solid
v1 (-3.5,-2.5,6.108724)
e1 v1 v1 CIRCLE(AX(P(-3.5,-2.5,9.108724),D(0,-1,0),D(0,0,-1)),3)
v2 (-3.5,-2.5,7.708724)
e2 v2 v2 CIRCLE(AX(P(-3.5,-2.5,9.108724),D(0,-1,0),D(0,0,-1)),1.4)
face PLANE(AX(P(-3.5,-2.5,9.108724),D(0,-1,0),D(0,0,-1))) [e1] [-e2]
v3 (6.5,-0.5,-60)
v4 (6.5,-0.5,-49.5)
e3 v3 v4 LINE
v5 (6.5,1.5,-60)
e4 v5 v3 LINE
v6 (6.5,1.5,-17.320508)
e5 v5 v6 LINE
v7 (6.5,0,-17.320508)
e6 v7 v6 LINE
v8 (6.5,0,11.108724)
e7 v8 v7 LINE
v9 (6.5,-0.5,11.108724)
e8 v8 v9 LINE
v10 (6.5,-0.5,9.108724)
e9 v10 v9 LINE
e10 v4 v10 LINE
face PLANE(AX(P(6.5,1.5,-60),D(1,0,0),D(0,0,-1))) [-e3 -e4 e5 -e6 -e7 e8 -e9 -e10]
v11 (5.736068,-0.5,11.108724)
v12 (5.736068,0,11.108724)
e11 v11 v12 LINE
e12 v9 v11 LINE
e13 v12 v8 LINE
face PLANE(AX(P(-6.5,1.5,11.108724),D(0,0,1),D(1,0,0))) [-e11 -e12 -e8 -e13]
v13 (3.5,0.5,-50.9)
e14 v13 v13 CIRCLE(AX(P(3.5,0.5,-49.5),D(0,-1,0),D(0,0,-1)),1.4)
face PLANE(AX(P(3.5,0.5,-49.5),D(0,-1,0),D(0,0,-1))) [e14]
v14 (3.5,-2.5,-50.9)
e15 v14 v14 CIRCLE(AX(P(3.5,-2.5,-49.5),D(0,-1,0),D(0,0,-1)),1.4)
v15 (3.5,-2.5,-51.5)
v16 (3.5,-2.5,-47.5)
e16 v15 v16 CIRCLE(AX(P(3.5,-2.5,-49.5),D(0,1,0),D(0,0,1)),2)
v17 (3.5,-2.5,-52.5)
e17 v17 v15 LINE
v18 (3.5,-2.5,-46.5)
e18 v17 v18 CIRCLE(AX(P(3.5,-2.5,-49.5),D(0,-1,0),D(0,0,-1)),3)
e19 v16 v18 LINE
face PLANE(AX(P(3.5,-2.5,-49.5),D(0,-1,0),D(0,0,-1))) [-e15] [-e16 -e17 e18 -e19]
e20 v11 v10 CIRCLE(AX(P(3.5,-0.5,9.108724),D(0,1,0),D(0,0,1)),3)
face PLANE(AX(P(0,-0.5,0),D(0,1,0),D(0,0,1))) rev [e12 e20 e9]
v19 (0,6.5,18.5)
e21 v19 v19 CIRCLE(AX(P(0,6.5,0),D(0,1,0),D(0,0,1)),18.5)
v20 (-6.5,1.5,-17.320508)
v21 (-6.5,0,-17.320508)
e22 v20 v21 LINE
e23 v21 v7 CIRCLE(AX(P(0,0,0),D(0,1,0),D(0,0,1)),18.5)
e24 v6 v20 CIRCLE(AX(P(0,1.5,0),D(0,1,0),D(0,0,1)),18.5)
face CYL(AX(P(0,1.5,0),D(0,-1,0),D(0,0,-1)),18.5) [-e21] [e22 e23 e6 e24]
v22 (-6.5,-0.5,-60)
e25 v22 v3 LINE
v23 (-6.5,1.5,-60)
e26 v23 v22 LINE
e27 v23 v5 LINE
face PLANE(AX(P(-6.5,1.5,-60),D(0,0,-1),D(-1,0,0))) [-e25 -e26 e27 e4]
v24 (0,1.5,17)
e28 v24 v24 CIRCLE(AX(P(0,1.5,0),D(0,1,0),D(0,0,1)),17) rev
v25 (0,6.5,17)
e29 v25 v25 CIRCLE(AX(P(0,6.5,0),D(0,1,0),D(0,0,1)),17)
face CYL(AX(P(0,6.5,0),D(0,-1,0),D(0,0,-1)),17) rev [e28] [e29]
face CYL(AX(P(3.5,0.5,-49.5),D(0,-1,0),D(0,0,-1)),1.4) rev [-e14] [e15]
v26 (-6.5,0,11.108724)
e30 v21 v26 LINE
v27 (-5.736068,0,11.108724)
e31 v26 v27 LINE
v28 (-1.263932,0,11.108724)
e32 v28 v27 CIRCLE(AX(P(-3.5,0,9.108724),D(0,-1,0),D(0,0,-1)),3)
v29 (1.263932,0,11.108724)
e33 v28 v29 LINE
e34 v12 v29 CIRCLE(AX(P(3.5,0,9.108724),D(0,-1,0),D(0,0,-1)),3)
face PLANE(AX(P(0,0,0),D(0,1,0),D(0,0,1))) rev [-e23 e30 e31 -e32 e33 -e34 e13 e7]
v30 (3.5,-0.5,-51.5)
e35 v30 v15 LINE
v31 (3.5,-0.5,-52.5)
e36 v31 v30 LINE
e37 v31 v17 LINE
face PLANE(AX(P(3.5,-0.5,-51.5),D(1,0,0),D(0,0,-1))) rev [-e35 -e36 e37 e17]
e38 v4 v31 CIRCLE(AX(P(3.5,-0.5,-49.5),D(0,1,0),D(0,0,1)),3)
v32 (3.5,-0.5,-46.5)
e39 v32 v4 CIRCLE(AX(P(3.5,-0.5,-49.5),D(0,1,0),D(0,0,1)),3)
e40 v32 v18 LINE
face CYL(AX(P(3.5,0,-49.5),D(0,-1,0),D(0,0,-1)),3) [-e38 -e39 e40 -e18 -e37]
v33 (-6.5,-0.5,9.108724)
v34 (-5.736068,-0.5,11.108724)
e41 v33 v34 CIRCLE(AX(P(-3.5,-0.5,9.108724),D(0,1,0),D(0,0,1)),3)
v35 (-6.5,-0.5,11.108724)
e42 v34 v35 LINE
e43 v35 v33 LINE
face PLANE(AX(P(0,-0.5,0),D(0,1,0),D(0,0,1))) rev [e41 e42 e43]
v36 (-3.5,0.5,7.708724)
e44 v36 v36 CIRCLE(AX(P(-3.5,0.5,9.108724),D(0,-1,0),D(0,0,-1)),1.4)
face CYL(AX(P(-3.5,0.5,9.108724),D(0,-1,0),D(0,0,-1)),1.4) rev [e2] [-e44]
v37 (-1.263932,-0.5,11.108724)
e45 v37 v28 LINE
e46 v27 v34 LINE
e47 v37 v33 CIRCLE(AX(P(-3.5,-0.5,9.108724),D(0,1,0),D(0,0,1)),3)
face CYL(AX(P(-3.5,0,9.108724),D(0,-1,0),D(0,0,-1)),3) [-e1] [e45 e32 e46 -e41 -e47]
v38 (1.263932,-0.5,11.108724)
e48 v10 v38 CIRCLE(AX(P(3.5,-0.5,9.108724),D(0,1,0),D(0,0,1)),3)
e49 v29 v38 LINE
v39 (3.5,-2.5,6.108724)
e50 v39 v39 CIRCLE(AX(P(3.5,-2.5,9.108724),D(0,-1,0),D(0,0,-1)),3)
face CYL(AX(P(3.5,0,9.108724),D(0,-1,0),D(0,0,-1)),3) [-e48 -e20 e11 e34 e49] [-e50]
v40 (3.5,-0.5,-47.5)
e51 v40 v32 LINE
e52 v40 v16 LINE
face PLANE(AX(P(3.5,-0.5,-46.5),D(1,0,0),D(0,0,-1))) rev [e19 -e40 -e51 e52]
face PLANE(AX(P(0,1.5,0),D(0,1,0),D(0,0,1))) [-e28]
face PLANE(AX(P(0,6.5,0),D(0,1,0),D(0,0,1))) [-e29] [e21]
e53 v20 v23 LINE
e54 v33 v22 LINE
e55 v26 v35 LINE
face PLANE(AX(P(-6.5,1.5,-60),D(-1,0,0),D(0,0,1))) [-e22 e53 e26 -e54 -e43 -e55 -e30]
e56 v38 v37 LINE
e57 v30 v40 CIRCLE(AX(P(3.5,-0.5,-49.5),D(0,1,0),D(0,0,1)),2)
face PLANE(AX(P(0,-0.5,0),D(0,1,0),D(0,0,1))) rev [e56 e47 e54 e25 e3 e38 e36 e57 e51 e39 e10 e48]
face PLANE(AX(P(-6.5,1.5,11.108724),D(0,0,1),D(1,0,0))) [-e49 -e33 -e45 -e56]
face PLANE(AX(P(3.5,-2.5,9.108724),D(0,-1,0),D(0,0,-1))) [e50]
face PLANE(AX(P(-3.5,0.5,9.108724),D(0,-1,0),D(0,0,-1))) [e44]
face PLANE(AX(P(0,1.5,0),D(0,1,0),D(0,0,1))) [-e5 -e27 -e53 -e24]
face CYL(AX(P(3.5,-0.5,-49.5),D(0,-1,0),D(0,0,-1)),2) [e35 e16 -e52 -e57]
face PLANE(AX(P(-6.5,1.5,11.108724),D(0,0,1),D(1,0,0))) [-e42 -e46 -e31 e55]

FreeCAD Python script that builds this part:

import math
import FreeCAD as App
import Part
import Sketcher


def add_polygon(sketch, points):
    """Adds a closed chain of lines whose ends are joined by coincident constraints."""
    first, n = sketch.GeometryCount, len(points)
    for a, b in zip(points, points[1:] + points[:1]):
        sketch.addGeometry(Part.LineSegment(App.Vector(*a, 0), App.Vector(*b, 0)), False)
    for i in range(n):
        sketch.addConstraint(Sketcher.Constraint("Coincident", first + i, 2, first + (i + 1) % n, 1))

doc = App.newDocument("Part")
params = doc.addObject("Spreadsheet::Sheet", "Params")
for row, (alias, value) in enumerate([
    ("sketch1_diameter", "37 mm"),
    ("pad1_length", "1.5 mm"),
    ("sketch2_diameter", "37 mm"),
    ("sketch2_diameter2", "34 mm"),
    ("pad2_length", "5 mm"),
    ("sketch3_width", "13 mm"),
    ("pad3_length", "0.5 mm"),
    ("pad3_length2", "1.5 mm"),
    ("sketch4_diameter", "6 mm"),
    ("pad4_length", "2 mm"),
    ("pad4_length2", "0.5 mm"),
    ("sketch5_radius", "2 mm"),
    ("sketch5_radius2", "3 mm"),
    ("pocket1_length", "2 mm"),
    ("sketch6_diameter", "2.8 mm"),
    ("pocket2_length", "3 mm"),
], start=1):
    params.set(f"A{row}", alias)
    params.set(f"B{row}", "=" + value)
    params.setAlias(f"B{row}", alias)

body = doc.addObject("PartDesign::Body", "Body")

# Sketch on XZ plane
sketch1 = doc.addObject("Sketcher::SketchObject", "Sketch")
body.addObject(sketch1)
sketch1.AttachmentSupport = (doc.XZ_Plane, [""])
sketch1.MapMode = "FlatFace"
sketch1.addGeometry(Part.Circle(App.Vector(0, 0, 0), App.Vector(0, 0, 1), 18.5), False)
sketch1.addConstraint([
    Sketcher.Constraint("Coincident", 0, 3, -1, 1),
    Sketcher.Constraint("Diameter", 0, 37.0),
])
sketch1.setExpression("Constraints[1]", "Params.sketch1_diameter")
pad1 = doc.addObject("PartDesign::Pad", "Pad")
body.addObject(pad1)
pad1.Profile = sketch1
pad1.setExpression("Length", "Params.pad1_length")
pad1.Reversed = True

# Sketch on XZ plane
sketch2 = doc.addObject("Sketcher::SketchObject", "Sketch001")
body.addObject(sketch2)
sketch2.AttachmentSupport = (doc.XZ_Plane, [""])
sketch2.MapMode = "FlatFace"
sketch2.AttachmentOffset = App.Placement(App.Vector(0, 0, -1.5), App.Rotation())
sketch2.addGeometry([
    Part.Circle(App.Vector(0, 0, 0), App.Vector(0, 0, 1), 18.5),
    Part.Circle(App.Vector(0, 0, 0), App.Vector(0, 0, 1), 17),
], False)
sketch2.addConstraint([
    Sketcher.Constraint("Coincident", 0, 3, -1, 1),
    Sketcher.Constraint("Coincident", 1, 3, -1, 1),
    Sketcher.Constraint("Diameter", 0, 37.0),
    Sketcher.Constraint("Diameter", 1, 34.0),
])
sketch2.setExpression("Constraints[2]", "Params.sketch2_diameter")
sketch2.setExpression("Constraints[3]", "Params.sketch2_diameter2")
pad2 = doc.addObject("PartDesign::Pad", "Pad001")
body.addObject(pad2)
pad2.Profile = sketch2
pad2.setExpression("Length", "Params.pad2_length")
pad2.Reversed = True

# Sketch on XZ plane
sketch3 = doc.addObject("Sketcher::SketchObject", "Sketch002")
body.addObject(sketch3)
sketch3.AttachmentSupport = (doc.XZ_Plane, [""])
sketch3.MapMode = "FlatFace"
add_polygon(sketch3, [(6.5, -60), (6.5, 11.108724), (-6.5, 11.108724), (-6.5, -60)])  # lines 0-3
sketch3.addConstraint([
    Sketcher.Constraint("Vertical", 0),
    Sketcher.Constraint("Horizontal", 1),
    Sketcher.Constraint("Vertical", 2),
    Sketcher.Constraint("Horizontal", 3),
    Sketcher.Constraint("DistanceX", 1, 2, 1, 1, 13.0),
    Sketcher.Constraint("DistanceY", 2, 2, -1, 1, 60.0),
    Sketcher.Constraint("DistanceX", -1, 1, 0, 2, 6.5),
    Sketcher.Constraint("DistanceY", 0, 1, 0, 2, 71.108724),
])
sketch3.setExpression("Constraints[8]", "Params.sketch3_width")
pad3 = doc.addObject("PartDesign::Pad", "Pad002")
body.addObject(pad3)
pad3.Profile = sketch3
pad3.Type = "TwoLengths"
pad3.setExpression("Length", "Params.pad3_length")
pad3.setExpression("Length2", "Params.pad3_length2")

# Sketch on XZ plane
sketch4 = doc.addObject("Sketcher::SketchObject", "Sketch003")
body.addObject(sketch4)
sketch4.AttachmentSupport = (doc.XZ_Plane, [""])
sketch4.MapMode = "FlatFace"
sketch4.AttachmentOffset = App.Placement(App.Vector(0, 0, 0.5), App.Rotation())
sketch4.addGeometry([
    Part.Circle(App.Vector(-3.5, 9.108724, 0), App.Vector(0, 0, 1), 3),
    Part.Circle(App.Vector(3.5, -49.5, 0), App.Vector(0, 0, 1), 3),
    Part.Circle(App.Vector(3.5, 9.108724, 0), App.Vector(0, 0, 1), 3),
], False)
sketch4.addConstraint([
    Sketcher.Constraint("Equal", 0, 1),
    Sketcher.Constraint("Equal", 1, 2),
    Sketcher.Constraint("Symmetric", 0, 3, 2, 3, -2),
    Sketcher.Constraint("Vertical", 1, 3, 2, 3),
    Sketcher.Constraint("Diameter", 0, 6.0),
    Sketcher.Constraint("DistanceX", 0, 3, 1, 3, 7.0),
    Sketcher.Constraint("DistanceY", 1, 3, -1, 1, 49.5),
    Sketcher.Constraint("DistanceY", -1, 1, 0, 3, 9.108724),
])
sketch4.setExpression("Constraints[4]", "Params.sketch4_diameter")
pad4 = doc.addObject("PartDesign::Pad", "Pad003")
body.addObject(pad4)
pad4.Profile = sketch4
pad4.Type = "TwoLengths"
pad4.setExpression("Length", "Params.pad4_length")
pad4.setExpression("Length2", "Params.pad4_length2")

# Sketch on XZ plane
sketch5 = doc.addObject("Sketcher::SketchObject", "Sketch004")
body.addObject(sketch5)
sketch5.AttachmentSupport = (doc.XZ_Plane, [""])
sketch5.MapMode = "FlatFace"
sketch5.AttachmentOffset = App.Placement(App.Vector(0, 0, 2.5), App.Rotation())
sketch5.addGeometry([
    Part.LineSegment(App.Vector(3.5, -52.5, 0), App.Vector(3.5, -51.5, 0)),
    Part.ArcOfCircle(Part.Circle(App.Vector(3.5, -49.5, 0), App.Vector(0, 0, 1), 2), math.radians(90), math.radians(270)),
    Part.LineSegment(App.Vector(3.5, -47.5, 0), App.Vector(3.5, -46.5, 0)),
    Part.ArcOfCircle(Part.Circle(App.Vector(3.5, -49.5, 0), App.Vector(0, 0, 1), 3), math.radians(90), math.radians(270)),
], False)
sketch5.addConstraint([
    Sketcher.Constraint("Coincident", 0, 2, 1, 2),
    Sketcher.Constraint("Coincident", 1, 1, 2, 1),
    Sketcher.Constraint("Coincident", 2, 2, 3, 1),
    Sketcher.Constraint("Coincident", 3, 2, 0, 1),
    Sketcher.Constraint("Vertical", 0),
    Sketcher.Constraint("Vertical", 2),
    Sketcher.Constraint("Coincident", 3, 3, 1, 3),
    Sketcher.Constraint("Vertical", 3, 3, 0, 2),
    Sketcher.Constraint("Vertical", 0, 2, 1, 1),
    Sketcher.Constraint("Radius", 1, 2.0),
    Sketcher.Constraint("Radius", 3, 3.0),
    Sketcher.Constraint("DistanceX", -1, 1, 1, 3, 3.5),
    Sketcher.Constraint("DistanceY", 1, 3, -1, 1, 49.5),
])
sketch5.setExpression("Constraints[9]", "Params.sketch5_radius")
sketch5.setExpression("Constraints[10]", "Params.sketch5_radius2")
pocket1 = doc.addObject("PartDesign::Pocket", "Pocket")
body.addObject(pocket1)
pocket1.Profile = sketch5
pocket1.setExpression("Length", "Params.pocket1_length")

# Sketch on XZ plane
sketch6 = doc.addObject("Sketcher::SketchObject", "Sketch005")
body.addObject(sketch6)
sketch6.AttachmentSupport = (doc.XZ_Plane, [""])
sketch6.MapMode = "FlatFace"
sketch6.AttachmentOffset = App.Placement(App.Vector(0, 0, 2.5), App.Rotation())
sketch6.addGeometry([
    Part.Circle(App.Vector(3.5, -49.5, 0), App.Vector(0, 0, 1), 1.4),
    Part.Circle(App.Vector(-3.5, 9.108724, 0), App.Vector(0, 0, 1), 1.4),
], False)
sketch6.addConstraint([
    Sketcher.Constraint("Equal", 0, 1),
    Sketcher.Constraint("Diameter", 0, 2.8),
    Sketcher.Constraint("DistanceX", 1, 3, 0, 3, 7.0),
    Sketcher.Constraint("DistanceX", -1, 1, 0, 3, 3.5),
    Sketcher.Constraint("DistanceY", 0, 3, -1, 1, 49.5),
    Sketcher.Constraint("DistanceY", -1, 1, 1, 3, 9.108724),
])
sketch6.setExpression("Constraints[1]", "Params.sketch6_diameter")
pocket2 = doc.addObject("PartDesign::Pocket", "Pocket001")
body.addObject(pocket2)
pocket2.Profile = sketch6
pocket2.setExpression("Length", "Params.pocket2_length")

doc.recompute()
